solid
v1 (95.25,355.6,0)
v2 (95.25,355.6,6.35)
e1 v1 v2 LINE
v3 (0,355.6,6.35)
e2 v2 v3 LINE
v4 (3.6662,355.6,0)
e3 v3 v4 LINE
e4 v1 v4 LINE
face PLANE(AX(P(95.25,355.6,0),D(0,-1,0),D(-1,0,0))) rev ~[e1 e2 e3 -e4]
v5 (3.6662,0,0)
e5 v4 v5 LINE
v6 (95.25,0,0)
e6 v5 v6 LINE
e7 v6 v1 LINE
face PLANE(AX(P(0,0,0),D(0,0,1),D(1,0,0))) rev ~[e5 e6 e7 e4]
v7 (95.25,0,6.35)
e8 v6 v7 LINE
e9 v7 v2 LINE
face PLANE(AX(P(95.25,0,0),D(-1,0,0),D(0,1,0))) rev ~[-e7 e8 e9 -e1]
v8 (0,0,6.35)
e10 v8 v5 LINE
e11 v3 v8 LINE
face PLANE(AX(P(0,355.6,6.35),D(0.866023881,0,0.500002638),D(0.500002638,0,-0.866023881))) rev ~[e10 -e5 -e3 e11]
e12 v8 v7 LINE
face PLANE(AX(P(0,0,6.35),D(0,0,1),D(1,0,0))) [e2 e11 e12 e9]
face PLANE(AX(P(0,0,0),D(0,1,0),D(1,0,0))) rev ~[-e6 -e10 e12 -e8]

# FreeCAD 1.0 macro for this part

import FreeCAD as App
import Part
import Sketcher
Q = App.Units.Quantity


def add_polygon(sketch, points):
    """Adds a closed chain of lines whose ends are joined by coincident constraints."""
    first, n = sketch.GeometryCount, len(points)
    for a, b in zip(points, points[1:] + points[:1]):
        sketch.addGeometry(Part.LineSegment(App.Vector(*a, 0), App.Vector(*b, 0)), False)
    for i in range(n):
        sketch.addConstraint(Sketcher.Constraint("Coincident", first + i, 2, first + (i + 1) % n, 1))

doc = App.newDocument("Part")
body = doc.addObject("PartDesign::Body", "Body")

sketch1 = body.newObject("Sketcher::SketchObject", "Sketch")
sketch1.AttachmentSupport = (doc.getObject("XY_Plane"), [""])
sketch1.MapMode = "FlatFace"
add_polygon(sketch1, [(0, 356), (0, 0), (95, 0), (95, 356)])
sketch1.addConstraint([
    Sketcher.Constraint("Vertical", 0),
    Sketcher.Constraint("Horizontal", 1),
    Sketcher.Constraint("Vertical", 2),
    Sketcher.Constraint("Horizontal", 3),
    Sketcher.Constraint("Coincident", 0, 2, -1, 1),
    Sketcher.Constraint("DistanceY", 0, 2, 0, 1, Q("14 in")),
    Sketcher.Constraint("DistanceX", 1, 1, 1, 2, Q("3.75 in")),
])
pad1 = body.newObject("PartDesign::Pad", "Pad")
pad1.Profile = sketch1
pad1.Length = Q("0.25 in")

sketch2 = body.newObject("Sketcher::SketchObject", "Sketch001")
sketch2.AttachmentSupport = (doc.getObject("XZ_Plane"), [""])
sketch2.MapMode = "FlatFace"
sketch2.AttachmentOffset = App.Placement(App.Vector(0, 0, -14 * 25.4), App.Rotation())
add_polygon(sketch2, [(0, 0), (0, 6.3), (3.7, 0)])
sketch2.addConstraint([
    Sketcher.Constraint("Vertical", 0),
    Sketcher.Constraint("Horizontal", 2),
    Sketcher.Constraint("Coincident", 2, 2, -1, 1),
    Sketcher.Constraint("Angle", 1, Q("-59.9998 deg")),
    Sketcher.Constraint("DistanceY", 0, 1, 0, 2, Q("0.25 in")),
])
pocket1 = body.newObject("PartDesign::Pocket", "Pocket")
pocket1.Profile = sketch2
pocket1.Length = Q("14 in")
pocket1.Reversed = True

doc.recompute()
